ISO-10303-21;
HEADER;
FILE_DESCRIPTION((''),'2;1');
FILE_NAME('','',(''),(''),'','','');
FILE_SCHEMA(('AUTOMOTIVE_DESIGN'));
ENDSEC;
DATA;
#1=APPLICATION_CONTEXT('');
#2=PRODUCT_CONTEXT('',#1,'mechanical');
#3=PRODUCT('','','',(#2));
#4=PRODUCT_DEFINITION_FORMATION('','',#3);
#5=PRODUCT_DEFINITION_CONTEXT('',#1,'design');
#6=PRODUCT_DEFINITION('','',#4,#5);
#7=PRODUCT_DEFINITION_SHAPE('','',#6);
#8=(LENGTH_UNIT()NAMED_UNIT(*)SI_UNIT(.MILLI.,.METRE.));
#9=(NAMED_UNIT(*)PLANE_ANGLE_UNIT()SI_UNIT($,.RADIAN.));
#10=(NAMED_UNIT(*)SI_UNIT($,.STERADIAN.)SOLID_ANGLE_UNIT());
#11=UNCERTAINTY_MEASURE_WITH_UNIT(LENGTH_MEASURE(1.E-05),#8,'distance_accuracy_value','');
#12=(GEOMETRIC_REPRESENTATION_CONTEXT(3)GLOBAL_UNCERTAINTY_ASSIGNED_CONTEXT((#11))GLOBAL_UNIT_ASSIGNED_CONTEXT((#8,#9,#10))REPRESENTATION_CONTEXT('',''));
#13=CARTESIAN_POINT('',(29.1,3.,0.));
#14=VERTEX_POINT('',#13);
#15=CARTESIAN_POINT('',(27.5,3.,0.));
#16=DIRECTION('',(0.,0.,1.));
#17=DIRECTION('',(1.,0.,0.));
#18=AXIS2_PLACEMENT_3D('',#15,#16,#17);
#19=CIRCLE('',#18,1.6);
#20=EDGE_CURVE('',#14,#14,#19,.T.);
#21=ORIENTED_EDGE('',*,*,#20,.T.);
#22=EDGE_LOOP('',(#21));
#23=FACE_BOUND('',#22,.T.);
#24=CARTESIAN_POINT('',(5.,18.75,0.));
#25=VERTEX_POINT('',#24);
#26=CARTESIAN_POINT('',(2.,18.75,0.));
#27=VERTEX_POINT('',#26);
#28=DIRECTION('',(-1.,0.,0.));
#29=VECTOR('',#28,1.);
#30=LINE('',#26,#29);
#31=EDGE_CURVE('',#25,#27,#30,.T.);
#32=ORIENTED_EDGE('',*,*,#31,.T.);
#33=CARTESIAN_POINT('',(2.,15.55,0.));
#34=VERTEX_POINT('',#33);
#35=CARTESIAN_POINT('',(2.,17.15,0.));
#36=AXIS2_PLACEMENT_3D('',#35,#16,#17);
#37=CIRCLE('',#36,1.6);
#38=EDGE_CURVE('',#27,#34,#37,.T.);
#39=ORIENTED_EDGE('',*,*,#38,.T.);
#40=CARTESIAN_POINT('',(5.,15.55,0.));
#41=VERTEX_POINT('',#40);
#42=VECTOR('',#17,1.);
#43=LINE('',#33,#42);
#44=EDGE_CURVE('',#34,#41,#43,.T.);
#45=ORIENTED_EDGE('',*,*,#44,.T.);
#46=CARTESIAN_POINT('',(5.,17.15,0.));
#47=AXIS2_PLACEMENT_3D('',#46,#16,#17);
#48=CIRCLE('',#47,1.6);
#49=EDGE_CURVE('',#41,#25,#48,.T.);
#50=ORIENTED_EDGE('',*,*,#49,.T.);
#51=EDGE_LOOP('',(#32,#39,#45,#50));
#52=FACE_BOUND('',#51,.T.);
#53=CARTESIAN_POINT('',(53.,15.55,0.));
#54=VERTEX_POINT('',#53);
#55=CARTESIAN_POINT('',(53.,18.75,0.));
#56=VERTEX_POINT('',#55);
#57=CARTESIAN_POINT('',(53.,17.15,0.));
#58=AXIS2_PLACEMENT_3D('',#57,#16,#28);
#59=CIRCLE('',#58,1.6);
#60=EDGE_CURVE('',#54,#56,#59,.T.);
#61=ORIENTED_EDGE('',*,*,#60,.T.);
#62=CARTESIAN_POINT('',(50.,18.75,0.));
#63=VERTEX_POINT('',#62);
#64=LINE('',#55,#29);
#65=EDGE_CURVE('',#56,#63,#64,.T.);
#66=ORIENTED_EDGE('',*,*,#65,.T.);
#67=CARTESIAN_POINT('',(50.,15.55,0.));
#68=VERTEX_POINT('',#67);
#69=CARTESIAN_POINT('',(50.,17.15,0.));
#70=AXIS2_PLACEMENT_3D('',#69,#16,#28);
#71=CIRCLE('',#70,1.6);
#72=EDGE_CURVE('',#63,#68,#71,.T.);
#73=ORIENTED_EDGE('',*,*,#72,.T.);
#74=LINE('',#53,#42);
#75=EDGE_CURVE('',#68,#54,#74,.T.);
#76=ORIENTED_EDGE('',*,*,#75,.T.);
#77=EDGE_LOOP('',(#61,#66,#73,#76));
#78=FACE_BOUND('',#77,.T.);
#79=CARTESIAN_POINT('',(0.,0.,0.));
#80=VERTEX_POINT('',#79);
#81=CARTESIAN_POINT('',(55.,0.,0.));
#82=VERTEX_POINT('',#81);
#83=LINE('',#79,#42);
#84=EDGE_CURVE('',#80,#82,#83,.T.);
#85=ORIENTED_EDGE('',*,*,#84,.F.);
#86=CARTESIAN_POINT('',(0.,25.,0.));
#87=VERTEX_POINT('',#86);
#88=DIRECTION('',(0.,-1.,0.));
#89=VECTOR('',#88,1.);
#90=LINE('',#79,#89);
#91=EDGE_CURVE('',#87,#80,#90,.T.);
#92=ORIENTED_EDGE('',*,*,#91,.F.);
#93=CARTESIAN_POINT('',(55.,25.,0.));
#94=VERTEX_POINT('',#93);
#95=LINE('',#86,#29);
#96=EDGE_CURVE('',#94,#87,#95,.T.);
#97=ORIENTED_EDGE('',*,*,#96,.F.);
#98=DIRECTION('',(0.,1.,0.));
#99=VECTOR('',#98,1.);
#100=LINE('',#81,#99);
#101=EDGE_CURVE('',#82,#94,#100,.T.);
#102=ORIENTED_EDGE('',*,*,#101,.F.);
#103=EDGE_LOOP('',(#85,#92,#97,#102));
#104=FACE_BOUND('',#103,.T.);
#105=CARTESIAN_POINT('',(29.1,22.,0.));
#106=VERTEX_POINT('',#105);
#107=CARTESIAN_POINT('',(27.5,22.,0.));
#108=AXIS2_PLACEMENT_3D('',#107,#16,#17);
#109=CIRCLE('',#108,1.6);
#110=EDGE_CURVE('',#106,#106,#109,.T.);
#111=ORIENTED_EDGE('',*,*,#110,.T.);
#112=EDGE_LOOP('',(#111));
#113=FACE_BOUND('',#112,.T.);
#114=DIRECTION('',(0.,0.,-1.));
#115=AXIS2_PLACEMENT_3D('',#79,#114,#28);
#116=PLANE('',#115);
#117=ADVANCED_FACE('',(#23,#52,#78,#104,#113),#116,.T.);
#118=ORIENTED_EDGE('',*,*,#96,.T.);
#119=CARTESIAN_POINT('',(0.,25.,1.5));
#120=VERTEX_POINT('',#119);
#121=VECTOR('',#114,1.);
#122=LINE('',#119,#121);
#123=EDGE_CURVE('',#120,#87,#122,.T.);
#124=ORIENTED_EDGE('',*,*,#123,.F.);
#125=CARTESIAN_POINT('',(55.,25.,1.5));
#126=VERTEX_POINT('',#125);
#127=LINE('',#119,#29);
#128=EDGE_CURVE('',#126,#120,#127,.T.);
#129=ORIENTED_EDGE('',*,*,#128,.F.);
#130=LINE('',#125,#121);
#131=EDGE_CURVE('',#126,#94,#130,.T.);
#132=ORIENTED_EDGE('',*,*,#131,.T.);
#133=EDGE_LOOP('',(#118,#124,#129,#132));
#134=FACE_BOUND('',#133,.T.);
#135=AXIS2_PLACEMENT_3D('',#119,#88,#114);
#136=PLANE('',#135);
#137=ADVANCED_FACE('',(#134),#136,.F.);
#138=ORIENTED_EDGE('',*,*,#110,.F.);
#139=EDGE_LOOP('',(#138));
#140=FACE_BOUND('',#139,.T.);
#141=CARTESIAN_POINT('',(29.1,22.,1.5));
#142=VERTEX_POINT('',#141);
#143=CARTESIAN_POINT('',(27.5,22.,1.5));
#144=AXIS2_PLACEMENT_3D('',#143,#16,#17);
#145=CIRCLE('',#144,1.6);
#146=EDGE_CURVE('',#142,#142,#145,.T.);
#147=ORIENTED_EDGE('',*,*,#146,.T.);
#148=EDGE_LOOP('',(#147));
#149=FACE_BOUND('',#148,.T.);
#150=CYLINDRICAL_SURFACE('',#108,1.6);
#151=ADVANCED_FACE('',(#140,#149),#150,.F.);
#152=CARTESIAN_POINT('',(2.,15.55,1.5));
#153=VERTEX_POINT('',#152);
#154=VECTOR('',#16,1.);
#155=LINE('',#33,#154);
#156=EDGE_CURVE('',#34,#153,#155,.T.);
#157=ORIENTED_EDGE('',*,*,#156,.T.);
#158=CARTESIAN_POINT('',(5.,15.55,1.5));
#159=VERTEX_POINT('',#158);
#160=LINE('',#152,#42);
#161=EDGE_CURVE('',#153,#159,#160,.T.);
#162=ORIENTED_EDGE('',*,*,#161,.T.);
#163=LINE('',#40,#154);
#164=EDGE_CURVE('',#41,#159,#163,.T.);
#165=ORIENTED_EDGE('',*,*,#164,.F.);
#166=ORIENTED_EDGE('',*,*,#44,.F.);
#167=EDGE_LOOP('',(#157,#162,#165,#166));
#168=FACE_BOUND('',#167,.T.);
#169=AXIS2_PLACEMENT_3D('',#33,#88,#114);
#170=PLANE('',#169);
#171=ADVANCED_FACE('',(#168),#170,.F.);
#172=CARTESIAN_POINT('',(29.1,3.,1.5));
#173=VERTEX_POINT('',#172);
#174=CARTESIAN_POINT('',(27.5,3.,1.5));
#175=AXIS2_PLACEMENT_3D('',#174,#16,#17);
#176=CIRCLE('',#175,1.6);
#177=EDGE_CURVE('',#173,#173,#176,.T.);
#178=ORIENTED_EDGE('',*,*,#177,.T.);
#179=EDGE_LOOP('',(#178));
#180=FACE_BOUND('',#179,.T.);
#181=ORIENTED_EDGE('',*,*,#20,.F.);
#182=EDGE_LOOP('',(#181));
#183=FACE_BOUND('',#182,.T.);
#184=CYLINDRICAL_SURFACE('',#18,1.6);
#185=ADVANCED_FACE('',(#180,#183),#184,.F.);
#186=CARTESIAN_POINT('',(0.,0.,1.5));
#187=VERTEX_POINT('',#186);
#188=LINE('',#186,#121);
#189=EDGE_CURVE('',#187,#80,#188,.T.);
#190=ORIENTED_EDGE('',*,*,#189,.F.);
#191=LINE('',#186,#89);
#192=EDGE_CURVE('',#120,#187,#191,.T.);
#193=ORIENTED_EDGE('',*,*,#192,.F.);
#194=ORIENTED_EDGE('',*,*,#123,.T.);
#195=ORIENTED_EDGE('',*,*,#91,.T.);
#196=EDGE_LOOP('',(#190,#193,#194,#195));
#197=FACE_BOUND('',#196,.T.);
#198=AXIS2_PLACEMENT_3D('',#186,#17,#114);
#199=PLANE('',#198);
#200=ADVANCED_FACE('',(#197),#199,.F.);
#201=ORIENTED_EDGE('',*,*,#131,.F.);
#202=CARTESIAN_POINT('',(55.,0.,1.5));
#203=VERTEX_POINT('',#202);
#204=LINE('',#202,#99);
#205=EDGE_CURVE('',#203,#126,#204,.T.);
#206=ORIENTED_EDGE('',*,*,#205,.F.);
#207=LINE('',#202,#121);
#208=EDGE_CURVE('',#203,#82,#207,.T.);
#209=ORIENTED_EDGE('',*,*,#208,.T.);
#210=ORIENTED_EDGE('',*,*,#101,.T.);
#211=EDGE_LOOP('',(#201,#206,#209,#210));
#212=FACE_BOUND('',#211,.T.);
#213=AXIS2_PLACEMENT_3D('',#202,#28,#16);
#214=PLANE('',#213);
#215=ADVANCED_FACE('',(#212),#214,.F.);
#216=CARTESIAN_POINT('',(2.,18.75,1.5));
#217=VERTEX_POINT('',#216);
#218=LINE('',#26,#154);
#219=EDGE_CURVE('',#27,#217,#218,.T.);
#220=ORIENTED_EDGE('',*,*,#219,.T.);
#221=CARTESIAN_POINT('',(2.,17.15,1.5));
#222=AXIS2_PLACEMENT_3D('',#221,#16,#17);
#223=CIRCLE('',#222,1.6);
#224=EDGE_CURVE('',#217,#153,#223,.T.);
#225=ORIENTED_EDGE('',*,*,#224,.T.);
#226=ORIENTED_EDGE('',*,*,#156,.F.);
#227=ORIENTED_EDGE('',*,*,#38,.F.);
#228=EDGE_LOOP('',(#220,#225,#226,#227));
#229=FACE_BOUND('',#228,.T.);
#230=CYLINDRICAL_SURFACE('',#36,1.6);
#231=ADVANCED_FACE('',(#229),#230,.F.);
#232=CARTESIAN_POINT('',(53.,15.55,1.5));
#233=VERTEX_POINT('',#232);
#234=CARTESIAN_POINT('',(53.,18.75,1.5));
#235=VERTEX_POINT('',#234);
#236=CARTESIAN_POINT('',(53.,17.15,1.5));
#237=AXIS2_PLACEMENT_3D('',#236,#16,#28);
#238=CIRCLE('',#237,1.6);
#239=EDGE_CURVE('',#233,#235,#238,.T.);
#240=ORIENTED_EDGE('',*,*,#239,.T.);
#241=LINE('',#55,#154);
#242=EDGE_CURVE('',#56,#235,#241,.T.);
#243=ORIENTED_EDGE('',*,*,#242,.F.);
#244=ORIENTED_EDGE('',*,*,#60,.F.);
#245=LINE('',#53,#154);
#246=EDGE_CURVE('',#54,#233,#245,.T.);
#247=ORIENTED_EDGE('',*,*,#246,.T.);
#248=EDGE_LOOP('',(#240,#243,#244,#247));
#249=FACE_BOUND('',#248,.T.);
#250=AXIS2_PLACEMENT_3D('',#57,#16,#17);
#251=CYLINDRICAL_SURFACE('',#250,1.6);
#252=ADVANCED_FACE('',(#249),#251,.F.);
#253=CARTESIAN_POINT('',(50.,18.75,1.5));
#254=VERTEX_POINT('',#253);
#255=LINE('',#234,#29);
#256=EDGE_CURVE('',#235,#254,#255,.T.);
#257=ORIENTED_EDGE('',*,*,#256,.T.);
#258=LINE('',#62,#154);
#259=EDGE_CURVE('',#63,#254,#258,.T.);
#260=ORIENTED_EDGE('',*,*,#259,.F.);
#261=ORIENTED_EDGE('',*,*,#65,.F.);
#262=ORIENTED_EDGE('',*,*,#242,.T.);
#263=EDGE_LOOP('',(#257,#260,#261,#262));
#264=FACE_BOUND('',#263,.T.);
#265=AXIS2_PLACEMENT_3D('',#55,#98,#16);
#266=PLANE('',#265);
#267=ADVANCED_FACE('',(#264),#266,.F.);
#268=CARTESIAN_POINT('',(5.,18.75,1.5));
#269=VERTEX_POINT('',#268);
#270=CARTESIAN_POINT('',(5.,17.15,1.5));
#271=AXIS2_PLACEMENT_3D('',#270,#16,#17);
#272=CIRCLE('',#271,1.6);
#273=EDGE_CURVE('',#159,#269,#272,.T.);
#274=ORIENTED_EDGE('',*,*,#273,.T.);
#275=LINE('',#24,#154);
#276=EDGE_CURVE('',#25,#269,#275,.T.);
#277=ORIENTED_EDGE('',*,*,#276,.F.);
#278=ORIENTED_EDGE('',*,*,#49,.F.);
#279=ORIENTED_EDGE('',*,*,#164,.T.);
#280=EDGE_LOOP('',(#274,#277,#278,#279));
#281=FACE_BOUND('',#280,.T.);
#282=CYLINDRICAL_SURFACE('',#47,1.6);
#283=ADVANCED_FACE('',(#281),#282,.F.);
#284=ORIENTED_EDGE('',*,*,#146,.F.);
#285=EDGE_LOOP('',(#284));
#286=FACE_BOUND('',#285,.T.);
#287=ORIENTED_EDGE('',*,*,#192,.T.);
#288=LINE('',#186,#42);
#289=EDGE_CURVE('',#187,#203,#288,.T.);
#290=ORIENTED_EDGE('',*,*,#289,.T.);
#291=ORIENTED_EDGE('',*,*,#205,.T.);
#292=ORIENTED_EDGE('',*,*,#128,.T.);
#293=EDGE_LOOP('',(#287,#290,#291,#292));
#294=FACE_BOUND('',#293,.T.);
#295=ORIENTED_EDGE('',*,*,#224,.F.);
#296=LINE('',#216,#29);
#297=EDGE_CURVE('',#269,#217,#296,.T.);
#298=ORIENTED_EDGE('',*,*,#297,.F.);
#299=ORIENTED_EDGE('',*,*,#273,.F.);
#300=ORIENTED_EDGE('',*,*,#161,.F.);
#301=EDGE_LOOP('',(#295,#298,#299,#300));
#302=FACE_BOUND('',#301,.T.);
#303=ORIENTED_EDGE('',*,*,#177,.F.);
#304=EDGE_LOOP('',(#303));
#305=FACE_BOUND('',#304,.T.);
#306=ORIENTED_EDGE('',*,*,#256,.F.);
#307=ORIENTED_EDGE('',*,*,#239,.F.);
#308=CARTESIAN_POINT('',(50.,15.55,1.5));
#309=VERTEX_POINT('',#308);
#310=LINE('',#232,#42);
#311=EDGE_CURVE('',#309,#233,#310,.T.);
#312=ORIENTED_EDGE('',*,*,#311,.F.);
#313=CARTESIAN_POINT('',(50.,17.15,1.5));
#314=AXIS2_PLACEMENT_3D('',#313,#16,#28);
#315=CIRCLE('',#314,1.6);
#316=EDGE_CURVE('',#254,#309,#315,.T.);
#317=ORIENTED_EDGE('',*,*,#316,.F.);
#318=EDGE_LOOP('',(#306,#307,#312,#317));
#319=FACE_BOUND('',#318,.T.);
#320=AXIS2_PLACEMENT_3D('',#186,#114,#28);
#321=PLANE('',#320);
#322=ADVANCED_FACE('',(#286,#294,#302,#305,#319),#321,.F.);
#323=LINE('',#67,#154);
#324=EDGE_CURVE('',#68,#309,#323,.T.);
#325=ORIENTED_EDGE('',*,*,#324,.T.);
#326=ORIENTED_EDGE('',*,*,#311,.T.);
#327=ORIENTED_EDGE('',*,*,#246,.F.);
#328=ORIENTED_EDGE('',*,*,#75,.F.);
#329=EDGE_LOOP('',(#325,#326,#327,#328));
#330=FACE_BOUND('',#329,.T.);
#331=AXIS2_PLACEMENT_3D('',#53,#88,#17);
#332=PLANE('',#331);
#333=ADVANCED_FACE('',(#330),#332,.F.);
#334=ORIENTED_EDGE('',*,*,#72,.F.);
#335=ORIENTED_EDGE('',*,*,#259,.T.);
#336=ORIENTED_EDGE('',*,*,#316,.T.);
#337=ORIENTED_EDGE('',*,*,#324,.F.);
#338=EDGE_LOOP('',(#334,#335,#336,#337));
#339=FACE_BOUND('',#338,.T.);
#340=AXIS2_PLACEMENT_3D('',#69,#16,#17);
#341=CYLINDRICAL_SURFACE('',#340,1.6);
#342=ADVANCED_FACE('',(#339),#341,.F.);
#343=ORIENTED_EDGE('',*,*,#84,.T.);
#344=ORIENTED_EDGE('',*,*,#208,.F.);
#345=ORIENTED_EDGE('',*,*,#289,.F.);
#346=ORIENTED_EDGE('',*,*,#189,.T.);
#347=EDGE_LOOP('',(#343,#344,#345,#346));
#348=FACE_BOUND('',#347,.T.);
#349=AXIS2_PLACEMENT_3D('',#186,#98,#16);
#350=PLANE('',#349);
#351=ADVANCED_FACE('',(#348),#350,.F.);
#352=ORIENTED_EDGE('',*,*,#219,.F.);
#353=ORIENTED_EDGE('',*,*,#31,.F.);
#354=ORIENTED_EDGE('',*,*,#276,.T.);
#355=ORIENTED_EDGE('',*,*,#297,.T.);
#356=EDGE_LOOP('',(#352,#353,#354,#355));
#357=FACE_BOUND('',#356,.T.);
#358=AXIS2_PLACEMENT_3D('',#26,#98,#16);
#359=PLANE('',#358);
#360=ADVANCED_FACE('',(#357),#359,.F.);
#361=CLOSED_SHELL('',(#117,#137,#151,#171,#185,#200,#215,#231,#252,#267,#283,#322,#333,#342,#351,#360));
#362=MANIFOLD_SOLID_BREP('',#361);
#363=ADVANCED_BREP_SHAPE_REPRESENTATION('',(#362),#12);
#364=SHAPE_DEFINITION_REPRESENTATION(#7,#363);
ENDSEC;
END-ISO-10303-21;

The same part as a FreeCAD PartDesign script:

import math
import FreeCAD as App
import Part
import Sketcher
from FreeCAD import Vector
Q = App.Units.Quantity

doc = App.newDocument("Part")
body = doc.addObject("PartDesign::Body", "Body")

# Sketch on XY plane
sketch1 = body.newObject("Sketcher::SketchObject", "Sketch")
sketch1.AttachmentSupport = (doc.getObject("XY_Plane"), [""])
sketch1.MapMode = "FlatFace"
sketch1.addGeometry([
    Part.LineSegment(Vector(0, 25, 0), Vector(0, 0, 0)),
    Part.LineSegment(Vector(0, 0, 0), Vector(55, 0, 0)),
    Part.LineSegment(Vector(55, 0, 0), Vector(55, 25, 0)),
    Part.LineSegment(Vector(55, 25, 0), Vector(0, 25, 0)),
], False)
sketch1.addConstraint([
    Sketcher.Constraint("Coincident", 0, 2, 1, 1),
    Sketcher.Constraint("Coincident", 1, 2, 2, 1),
    Sketcher.Constraint("Coincident", 2, 2, 3, 1),
    Sketcher.Constraint("Coincident", 3, 2, 0, 1),
    Sketcher.Constraint("Vertical", 0),
    Sketcher.Constraint("Horizontal", 1),
    Sketcher.Constraint("Vertical", 2),
    Sketcher.Constraint("Horizontal", 3),
    Sketcher.Constraint("Coincident", 0, 2, -1, 1),
    Sketcher.Constraint("DistanceX", 1, 1, 1, 2, Q("55 mm")),
    Sketcher.Constraint("DistanceY", 0, 2, 0, 1, Q("25 mm")),
])
pad1 = body.newObject("PartDesign::Pad", "Pad")
pad1.Profile = sketch1
pad1.Length = 1.5

# Sketch on XY plane
sketch2 = body.newObject("Sketcher::SketchObject", "Sketch001")
sketch2.AttachmentSupport = (doc.getObject("XY_Plane"), [""])
sketch2.MapMode = "FlatFace"
sketch2.AttachmentOffset = App.Placement(Vector(0, 0, 1.5), App.Rotation())
sketch2.addGeometry([
    Part.LineSegment(Vector(5, 18.8, 0), Vector(2, 18.8, 0)),  # 0
    Part.ArcOfCircle(Part.Circle(Vector(2, 17.1, 0), Vector(0, 0, 1), 1.6), math.radians(90), math.radians(270)),  # 1
    Part.LineSegment(Vector(2, 15.6, 0), Vector(5, 15.6, 0)),  # 2
    Part.ArcOfCircle(Part.Circle(Vector(5, 17.1, 0), Vector(0, 0, 1), 1.6), math.radians(-90), math.radians(90)),  # 3
    Part.LineSegment(Vector(53, 18.8, 0), Vector(50, 18.8, 0)),  # 4
    Part.ArcOfCircle(Part.Circle(Vector(50, 17.1, 0), Vector(0, 0, 1), 1.6), math.radians(90), math.radians(270)),  # 5
    Part.LineSegment(Vector(50, 15.6, 0), Vector(53, 15.6, 0)),  # 6
    Part.ArcOfCircle(Part.Circle(Vector(53, 17.1, 0), Vector(0, 0, 1), 1.6), math.radians(-90), math.radians(90)),  # 7
], False)
sketch2.addConstraint([
    Sketcher.Constraint("Tangent", 0, 2, 1, 1),
    Sketcher.Constraint("Tangent", 1, 2, 2, 1),
    Sketcher.Constraint("Tangent", 2, 2, 3, 1),
    Sketcher.Constraint("Tangent", 3, 2, 0, 1),
    Sketcher.Constraint("Tangent", 4, 2, 5, 1),
    Sketcher.Constraint("Tangent", 5, 2, 6, 1),
    Sketcher.Constraint("Tangent", 6, 2, 7, 1),
    Sketcher.Constraint("Tangent", 7, 2, 4, 1),
    Sketcher.Constraint("Horizontal", 0),
    Sketcher.Constraint("Horizontal", 2),
    Sketcher.Constraint("Horizontal", 4),
    Sketcher.Constraint("Horizontal", 6),
    Sketcher.Constraint("Equal", 3, 5),
    Sketcher.Constraint("Horizontal", 3, 3, 5, 3),
    Sketcher.Constraint("Equal", 2, 4),
    Sketcher.Constraint("Radius", 1, Q("1.6 mm")),
    Sketcher.Constraint("DistanceX", 0, 2, 0, 1, Q("3 mm")),
    Sketcher.Constraint("DistanceX", -1, 1, 1, 3, Q("2 mm")),
    Sketcher.Constraint("DistanceX", -1, 1, 5, 3, Q("50 mm")),
    Sketcher.Constraint("DistanceY", -1, 1, 1, 3, Q("17.15 mm")),
])
pocket1 = body.newObject("PartDesign::Pocket", "Pocket")
pocket1.Profile = sketch2
pocket1.Type = "ThroughAll"

# Sketch on XY plane
sketch3 = body.newObject("Sketcher::SketchObject", "Sketch002")
sketch3.AttachmentSupport = (doc.getObject("XY_Plane"), [""])
sketch3.MapMode = "FlatFace"
sketch3.AttachmentOffset = App.Placement(Vector(0, 0, 1.5), App.Rotation())
sketch3.addGeometry([
    Part.Circle(Vector(27.5, 22, 0), Vector(0, 0, 1), 1.6),
    Part.Circle(Vector(27.5, 3, 0), Vector(0, 0, 1), 1.6),
], False)
sketch3.addConstraint([
    Sketcher.Constraint("Equal", 0, 1),
    Sketcher.Constraint("Vertical", 0, 3, 1, 3),
    Sketcher.Constraint("Diameter", 0, Q("3.2 mm")),
    Sketcher.Constraint("DistanceY", -1, 1, 0, 3, Q("22 mm")),
    Sketcher.Constraint("DistanceY", -1, 1, 1, 3, Q("3 mm")),
    Sketcher.Constraint("DistanceX", -1, 1, 0, 3, Q("27.5 mm")),
])
pocket2 = body.newObject("PartDesign::Pocket", "Pocket001")
pocket2.Profile = sketch3
pocket2.Type = "ThroughAll"

doc.recompute()
